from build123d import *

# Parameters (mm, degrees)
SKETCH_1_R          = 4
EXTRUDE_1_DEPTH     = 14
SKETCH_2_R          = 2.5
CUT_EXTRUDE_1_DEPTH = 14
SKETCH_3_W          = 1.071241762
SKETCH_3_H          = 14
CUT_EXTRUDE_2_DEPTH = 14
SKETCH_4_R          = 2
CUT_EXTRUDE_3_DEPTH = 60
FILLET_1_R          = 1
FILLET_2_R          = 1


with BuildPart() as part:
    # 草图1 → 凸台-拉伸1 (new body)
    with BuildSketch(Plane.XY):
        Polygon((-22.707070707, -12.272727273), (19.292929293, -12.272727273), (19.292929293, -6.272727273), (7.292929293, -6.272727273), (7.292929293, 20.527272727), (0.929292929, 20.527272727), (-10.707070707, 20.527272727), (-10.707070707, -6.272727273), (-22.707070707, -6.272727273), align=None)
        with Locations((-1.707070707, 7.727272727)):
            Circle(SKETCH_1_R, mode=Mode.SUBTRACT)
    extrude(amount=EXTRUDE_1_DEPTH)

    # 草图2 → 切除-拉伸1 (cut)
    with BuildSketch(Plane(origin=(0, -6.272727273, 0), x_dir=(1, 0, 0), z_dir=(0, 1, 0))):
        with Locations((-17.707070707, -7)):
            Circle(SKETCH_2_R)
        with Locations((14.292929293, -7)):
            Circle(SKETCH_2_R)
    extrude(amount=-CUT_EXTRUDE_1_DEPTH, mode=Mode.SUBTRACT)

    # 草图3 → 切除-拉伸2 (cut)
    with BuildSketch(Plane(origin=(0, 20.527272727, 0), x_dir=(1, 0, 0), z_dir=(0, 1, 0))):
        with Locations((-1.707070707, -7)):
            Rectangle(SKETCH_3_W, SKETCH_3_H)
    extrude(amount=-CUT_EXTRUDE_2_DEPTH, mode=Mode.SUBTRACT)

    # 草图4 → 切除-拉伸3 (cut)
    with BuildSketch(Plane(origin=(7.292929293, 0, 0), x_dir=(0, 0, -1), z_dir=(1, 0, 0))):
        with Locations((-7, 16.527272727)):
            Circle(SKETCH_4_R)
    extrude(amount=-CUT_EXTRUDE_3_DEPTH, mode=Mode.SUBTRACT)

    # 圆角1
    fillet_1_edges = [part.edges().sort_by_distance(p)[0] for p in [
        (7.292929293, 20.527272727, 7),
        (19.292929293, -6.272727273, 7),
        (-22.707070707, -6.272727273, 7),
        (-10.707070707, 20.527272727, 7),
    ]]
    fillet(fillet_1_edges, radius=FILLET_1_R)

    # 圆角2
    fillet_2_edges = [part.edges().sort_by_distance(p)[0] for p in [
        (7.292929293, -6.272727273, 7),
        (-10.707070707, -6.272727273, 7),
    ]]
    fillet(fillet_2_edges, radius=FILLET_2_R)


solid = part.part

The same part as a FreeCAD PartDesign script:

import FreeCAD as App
import Part
import Sketcher

V = App.Vector


def edges_at(feature, points):
    """Names of the edges that pass closest to the given points."""
    edges = feature.Shape.Edges
    near = lambda p: min(range(len(edges)), key=lambda i: edges[i].distToShape(Part.Vertex(*p))[0])
    return sorted({f"Edge{near(p) + 1}" for p in points})


def add_polygon(sketch, points):
    """Adds a closed chain of lines whose ends are joined by coincident constraints."""
    first, n = sketch.GeometryCount, len(points)
    for a, b in zip(points, points[1:] + points[:1]):
        sketch.addGeometry(Part.LineSegment(App.Vector(*a, 0), App.Vector(*b, 0)), False)
    for i in range(n):
        sketch.addConstraint(Sketcher.Constraint("Coincident", first + i, 2, first + (i + 1) % n, 1))

doc = App.newDocument("Part")
body = doc.addObject("PartDesign::Body", "Body")

# Sketch on XY plane
sketch1 = body.newObject("Sketcher::SketchObject", "Sketch")
sketch1.AttachmentSupport = (doc.getObject("XY_Plane"), [""])
sketch1.MapMode = "FlatFace"
add_polygon(sketch1, [(-22.707071, -12.272727), (19.292929, -12.272727), (19.292929, -6.272727), (7.292929, -6.272727), (7.292929, 20.527273), (-10.707071, 20.527273), (-10.707071, -6.272727), (-22.707071, -6.272727)])  # lines 0-7
sketch1.addGeometry(Part.Circle(V(-1.707071, 7.727273, 0), V(0, 0, 1), 4), False)  # 8
sketch1.addConstraint(Sketcher.Constraint("Horizontal", 0))
sketch1.addConstraint(Sketcher.Constraint("Vertical", 1))
sketch1.addConstraint(Sketcher.Constraint("Horizontal", 2))
sketch1.addConstraint(Sketcher.Constraint("Vertical", 3))
sketch1.addConstraint(Sketcher.Constraint("Horizontal", 4))
sketch1.addConstraint(Sketcher.Constraint("Vertical", 5))
sketch1.addConstraint(Sketcher.Constraint("Horizontal", 6))
sketch1.addConstraint(Sketcher.Constraint("Vertical", 7))
sketch1.addConstraint(Sketcher.Constraint("Horizontal", 2, 2, 5, 2))
sketch1.addConstraint(Sketcher.Constraint("Equal", 2, 6))
sketch1.addConstraint(Sketcher.Constraint("Diameter", 8, 8.0))
sketch1.addConstraint(Sketcher.Constraint("DistanceX", 0, 1, 0, 2, 42.0))
sketch1.addConstraint(Sketcher.Constraint("DistanceX", 2, 2, 2, 1, 12.0))
sketch1.addConstraint(Sketcher.Constraint("DistanceY", 1, 1, 1, 2, 6.0))
sketch1.addConstraint(Sketcher.Constraint("DistanceY", 3, 1, 3, 2, 26.8))
sketch1.addConstraint(Sketcher.Constraint("DistanceX", 8, 3, 0, 2, 21.0))
sketch1.addConstraint(Sketcher.Constraint("DistanceY", 0, 2, 8, 3, 20.0))
sketch1.addConstraint(Sketcher.Constraint("DistanceX", 8, 3, -1, 1, 1.707071))
sketch1.addConstraint(Sketcher.Constraint("DistanceY", -1, 1, 8, 3, 7.727273))
pad1 = body.newObject("PartDesign::Pad", "Pad")
pad1.Profile = sketch1
pad1.Length = 14

# Sketch on XZ plane
sketch2 = body.newObject("Sketcher::SketchObject", "Sketch001")
sketch2.AttachmentSupport = (doc.getObject("XZ_Plane"), [""])
sketch2.MapMode = "FlatFace"
sketch2.AttachmentOffset = App.Placement(V(0, 0, 6.272727), App.Rotation())
sketch2.addGeometry(Part.Circle(V(-17.707071, 7, 0), V(0, 0, 1), 2.5), False)
sketch2.addGeometry(Part.Circle(V(14.292929, 7, 0), V(0, 0, 1), 2.5), False)
sketch2.addConstraint(Sketcher.Constraint("Equal", 0, 1))
sketch2.addConstraint(Sketcher.Constraint("Horizontal", 0, 3, 1, 3))
sketch2.addConstraint(Sketcher.Constraint("Diameter", 0, 5.0))
sketch2.addConstraint(Sketcher.Constraint("DistanceY", -1, 1, 0, 3, 7.0))
sketch2.addConstraint(Sketcher.Constraint("DistanceX", 0, 3, 1, 3, 32.0))
sketch2.addConstraint(Sketcher.Constraint("DistanceX", 0, 3, -1, 1, 17.707071))
pocket1 = body.newObject("PartDesign::Pocket", "Pocket")
pocket1.Profile = sketch2
pocket1.Length = 14
pocket1.Reversed = True

# Sketch on XZ plane
sketch3 = body.newObject("Sketcher::SketchObject", "Sketch002")
sketch3.AttachmentSupport = (doc.getObject("XZ_Plane"), [""])
sketch3.MapMode = "FlatFace"
sketch3.AttachmentOffset = App.Placement(V(0, 0, -20.527273), App.Rotation())
add_polygon(sketch3, [(-2.242692, 0), (-2.242692, 14), (-1.17145, 14), (-1.17145, 0)])  # lines 0-3
sketch3.addConstraint(Sketcher.Constraint("Vertical", 0))
sketch3.addConstraint(Sketcher.Constraint("Horizontal", 1))
sketch3.addConstraint(Sketcher.Constraint("Vertical", 2))
sketch3.addConstraint(Sketcher.Constraint("Horizontal", 3))
sketch3.addConstraint(Sketcher.Constraint("PointOnObject", 2, 2, -1))
sketch3.addConstraint(Sketcher.Constraint("DistanceY", 0, 1, 0, 2, 14.0))
sketch3.addConstraint(Sketcher.Constraint("DistanceX", 1, 1, 1, 2, 1.071242))
sketch3.addConstraint(Sketcher.Constraint("DistanceX", 0, 2, -1, 1, 2.242692))
pocket2 = body.newObject("PartDesign::Pocket", "Pocket001")
pocket2.Profile = sketch3
pocket2.Length = 14
pocket2.Reversed = True

# Sketch on YZ plane
sketch4 = body.newObject("Sketcher::SketchObject", "Sketch003")
sketch4.AttachmentSupport = (doc.getObject("YZ_Plane"), [""])
sketch4.MapMode = "FlatFace"
sketch4.AttachmentOffset = App.Placement(V(0, 0, 7.292929), App.Rotation())
sketch4.addGeometry(Part.Circle(V(16.527273, 7, 0), V(0, 0, 1), 2), False)
sketch4.addConstraint(Sketcher.Constraint("Diameter", 0, 4.0))
sketch4.addConstraint(Sketcher.Constraint("DistanceY", -1, 1, 0, 3, 7.0))
sketch4.addConstraint(Sketcher.Constraint("DistanceX", -1, 1, 0, 3, 16.527273))
pocket3 = body.newObject("PartDesign::Pocket", "Pocket002")
pocket3.Profile = sketch4
pocket3.Length = 60
doc.recompute()

fillet = body.newObject("PartDesign::Fillet", "Fillet")
fillet.Base = (pocket3, edges_at(pocket3, [
    (7.293, 20.527, 7),
    (19.293, -6.273, 7),
    (-22.707, -6.273, 7),
    (-10.707, 20.527, 7),
]))
fillet.Radius = 1
doc.recompute()

fillet2 = body.newObject("PartDesign::Fillet", "Fillet001")
fillet2.Base = (fillet, edges_at(fillet, [(7.293, -6.273, 7), (-10.707, -6.273, 7)]))
fillet2.Radius = 1

doc.recompute()
